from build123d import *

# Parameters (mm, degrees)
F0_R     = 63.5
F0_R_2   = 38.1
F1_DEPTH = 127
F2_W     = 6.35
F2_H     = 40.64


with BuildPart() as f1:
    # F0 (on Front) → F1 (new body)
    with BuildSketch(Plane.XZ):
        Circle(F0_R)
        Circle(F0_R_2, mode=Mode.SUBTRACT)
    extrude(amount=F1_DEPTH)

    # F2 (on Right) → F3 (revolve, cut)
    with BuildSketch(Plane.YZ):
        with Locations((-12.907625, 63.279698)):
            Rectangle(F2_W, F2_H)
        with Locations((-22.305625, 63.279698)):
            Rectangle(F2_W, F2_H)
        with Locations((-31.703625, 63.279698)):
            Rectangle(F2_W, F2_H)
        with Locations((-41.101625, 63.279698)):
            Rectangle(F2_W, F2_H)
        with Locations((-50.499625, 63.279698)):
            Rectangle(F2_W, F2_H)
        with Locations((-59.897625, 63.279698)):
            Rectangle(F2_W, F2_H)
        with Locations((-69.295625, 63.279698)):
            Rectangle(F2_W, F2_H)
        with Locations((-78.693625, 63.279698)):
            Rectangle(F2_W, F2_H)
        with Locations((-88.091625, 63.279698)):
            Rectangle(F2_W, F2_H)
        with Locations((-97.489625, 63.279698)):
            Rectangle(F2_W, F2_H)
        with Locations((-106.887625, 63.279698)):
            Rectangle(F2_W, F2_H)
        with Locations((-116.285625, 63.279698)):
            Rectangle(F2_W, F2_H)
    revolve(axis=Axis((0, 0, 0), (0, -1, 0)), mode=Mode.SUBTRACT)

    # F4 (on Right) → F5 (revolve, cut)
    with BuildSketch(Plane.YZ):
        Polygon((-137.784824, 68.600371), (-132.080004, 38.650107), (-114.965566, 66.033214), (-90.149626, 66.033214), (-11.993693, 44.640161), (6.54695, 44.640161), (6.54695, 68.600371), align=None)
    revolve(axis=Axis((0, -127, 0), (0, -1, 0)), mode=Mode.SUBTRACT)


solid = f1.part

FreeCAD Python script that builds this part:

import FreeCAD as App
import Part
import Sketcher
from FreeCAD import Vector
Q = App.Units.Quantity

doc = App.newDocument("Part")
body = doc.addObject("PartDesign::Body", "Body")

# Sketch on XZ plane
sketch1 = body.newObject("Sketcher::SketchObject", "Sketch")
sketch1.AttachmentSupport = (doc.getObject("XZ_Plane"), [""])
sketch1.MapMode = "FlatFace"
sketch1.addGeometry(Part.Circle(Vector(0, 0, 0), Vector(0, 0, 1), 64), False)
sketch1.addGeometry(Part.Circle(Vector(0, 0, 0), Vector(0, 0, 1), 38), False)
sketch1.addConstraint(Sketcher.Constraint("Coincident", 0, 3, -1, 1))
sketch1.addConstraint(Sketcher.Constraint("Coincident", 1, 3, -1, 1))
sketch1.addConstraint(Sketcher.Constraint("Diameter", 0, Q("5 in")))
sketch1.addConstraint(Sketcher.Constraint("Diameter", 1, Q("3 in")))
pad1 = body.newObject("PartDesign::Pad", "Pad")
pad1.Profile = sketch1
pad1.Length = Q("5 in")

# Sketch on YZ plane
sketch2 = body.newObject("Sketcher::SketchObject", "Sketch001")
sketch2.AttachmentSupport = (doc.getObject("YZ_Plane"), [""])
sketch2.MapMode = "FlatFace"
sketch2.addGeometry(Part.LineSegment(Vector(-16, 84, 0), Vector(-16, 43, 0)), False)
sketch2.addGeometry(Part.LineSegment(Vector(-16, 43, 0), Vector(-10, 43, 0)), False)
sketch2.addGeometry(Part.LineSegment(Vector(-10, 43, 0), Vector(-10, 84, 0)), False)
sketch2.addGeometry(Part.LineSegment(Vector(-10, 84, 0), Vector(-16, 84, 0)), False)
sketch2.addGeometry(Part.LineSegment(Vector(-25, 84, 0), Vector(-25, 43, 0)), False)
sketch2.addGeometry(Part.LineSegment(Vector(-25, 43, 0), Vector(-19, 43, 0)), False)
sketch2.addGeometry(Part.LineSegment(Vector(-19, 43, 0), Vector(-19, 84, 0)), False)
sketch2.addGeometry(Part.LineSegment(Vector(-19, 84, 0), Vector(-25, 84, 0)), False)
sketch2.addGeometry(Part.LineSegment(Vector(-35, 84, 0), Vector(-35, 43, 0)), False)
sketch2.addGeometry(Part.LineSegment(Vector(-35, 43, 0), Vector(-29, 43, 0)), False)
sketch2.addGeometry(Part.LineSegment(Vector(-29, 43, 0), Vector(-29, 84, 0)), False)
sketch2.addGeometry(Part.LineSegment(Vector(-29, 84, 0), Vector(-35, 84, 0)), False)
sketch2.addGeometry(Part.LineSegment(Vector(-44, 84, 0), Vector(-44, 43, 0)), False)
sketch2.addGeometry(Part.LineSegment(Vector(-44, 43, 0), Vector(-38, 43, 0)), False)
sketch2.addGeometry(Part.LineSegment(Vector(-38, 43, 0), Vector(-38, 84, 0)), False)
sketch2.addGeometry(Part.LineSegment(Vector(-38, 84, 0), Vector(-44, 84, 0)), False)
sketch2.addGeometry(Part.LineSegment(Vector(-54, 84, 0), Vector(-54, 43, 0)), False)
sketch2.addGeometry(Part.LineSegment(Vector(-54, 43, 0), Vector(-47, 43, 0)), False)
sketch2.addGeometry(Part.LineSegment(Vector(-47, 43, 0), Vector(-47, 84, 0)), False)
sketch2.addGeometry(Part.LineSegment(Vector(-47, 84, 0), Vector(-54, 84, 0)), False)
sketch2.addGeometry(Part.LineSegment(Vector(-63, 84, 0), Vector(-63, 43, 0)), False)
sketch2.addGeometry(Part.LineSegment(Vector(-63, 43, 0), Vector(-57, 43, 0)), False)
sketch2.addGeometry(Part.LineSegment(Vector(-57, 43, 0), Vector(-57, 84, 0)), False)
sketch2.addGeometry(Part.LineSegment(Vector(-57, 84, 0), Vector(-63, 84, 0)), False)
sketch2.addGeometry(Part.LineSegment(Vector(-72, 84, 0), Vector(-72, 43, 0)), False)
sketch2.addGeometry(Part.LineSegment(Vector(-72, 43, 0), Vector(-66, 43, 0)), False)
sketch2.addGeometry(Part.LineSegment(Vector(-66, 43, 0), Vector(-66, 84, 0)), False)
sketch2.addGeometry(Part.LineSegment(Vector(-66, 84, 0), Vector(-72, 84, 0)), False)
sketch2.addGeometry(Part.LineSegment(Vector(-82, 84, 0), Vector(-82, 43, 0)), False)
sketch2.addGeometry(Part.LineSegment(Vector(-82, 43, 0), Vector(-76, 43, 0)), False)
sketch2.addGeometry(Part.LineSegment(Vector(-76, 43, 0), Vector(-76, 84, 0)), False)
sketch2.addGeometry(Part.LineSegment(Vector(-76, 84, 0), Vector(-82, 84, 0)), False)
sketch2.addGeometry(Part.LineSegment(Vector(-91, 84, 0), Vector(-91, 43, 0)), False)
sketch2.addGeometry(Part.LineSegment(Vector(-91, 43, 0), Vector(-85, 43, 0)), False)
sketch2.addGeometry(Part.LineSegment(Vector(-85, 43, 0), Vector(-85, 84, 0)), False)
sketch2.addGeometry(Part.LineSegment(Vector(-85, 84, 0), Vector(-91, 84, 0)), False)
sketch2.addGeometry(Part.LineSegment(Vector(-101, 84, 0), Vector(-101, 43, 0)), False)
sketch2.addGeometry(Part.LineSegment(Vector(-101, 43, 0), Vector(-94, 43, 0)), False)
sketch2.addGeometry(Part.LineSegment(Vector(-94, 43, 0), Vector(-94, 84, 0)), False)
sketch2.addGeometry(Part.LineSegment(Vector(-94, 84, 0), Vector(-101, 84, 0)), False)
sketch2.addGeometry(Part.LineSegment(Vector(-110, 84, 0), Vector(-110, 43, 0)), False)
sketch2.addGeometry(Part.LineSegment(Vector(-110, 43, 0), Vector(-104, 43, 0)), False)
sketch2.addGeometry(Part.LineSegment(Vector(-104, 43, 0), Vector(-104, 84, 0)), False)
sketch2.addGeometry(Part.LineSegment(Vector(-104, 84, 0), Vector(-110, 84, 0)), False)
sketch2.addGeometry(Part.LineSegment(Vector(-119, 84, 0), Vector(-119, 43, 0)), False)
sketch2.addGeometry(Part.LineSegment(Vector(-119, 43, 0), Vector(-113, 43, 0)), False)
sketch2.addGeometry(Part.LineSegment(Vector(-113, 43, 0), Vector(-113, 84, 0)), False)
sketch2.addGeometry(Part.LineSegment(Vector(-113, 84, 0), Vector(-119, 84, 0)), False)
sketch2.addConstraint(Sketcher.Constraint("Coincident", 0, 2, 1, 1))
sketch2.addConstraint(Sketcher.Constraint("Coincident", 1, 2, 2, 1))
sketch2.addConstraint(Sketcher.Constraint("Coincident", 2, 2, 3, 1))
sketch2.addConstraint(Sketcher.Constraint("Coincident", 3, 2, 0, 1))
sketch2.addConstraint(Sketcher.Constraint("Coincident", 4, 2, 5, 1))
sketch2.addConstraint(Sketcher.Constraint("Coincident", 5, 2, 6, 1))
sketch2.addConstraint(Sketcher.Constraint("Coincident", 6, 2, 7, 1))
sketch2.addConstraint(Sketcher.Constraint("Coincident", 7, 2, 4, 1))
sketch2.addConstraint(Sketcher.Constraint("Coincident", 8, 2, 9, 1))
sketch2.addConstraint(Sketcher.Constraint("Coincident", 9, 2, 10, 1))
sketch2.addConstraint(Sketcher.Constraint("Coincident", 10, 2, 11, 1))
sketch2.addConstraint(Sketcher.Constraint("Coincident", 11, 2, 8, 1))
sketch2.addConstraint(Sketcher.Constraint("Coincident", 12, 2, 13, 1))
sketch2.addConstraint(Sketcher.Constraint("Coincident", 13, 2, 14, 1))
sketch2.addConstraint(Sketcher.Constraint("Coincident", 14, 2, 15, 1))
sketch2.addConstraint(Sketcher.Constraint("Coincident", 15, 2, 12, 1))
sketch2.addConstraint(Sketcher.Constraint("Coincident", 16, 2, 17, 1))
sketch2.addConstraint(Sketcher.Constraint("Coincident", 17, 2, 18, 1))
sketch2.addConstraint(Sketcher.Constraint("Coincident", 18, 2, 19, 1))
sketch2.addConstraint(Sketcher.Constraint("Coincident", 19, 2, 16, 1))
sketch2.addConstraint(Sketcher.Constraint("Coincident", 20, 2, 21, 1))
sketch2.addConstraint(Sketcher.Constraint("Coincident", 21, 2, 22, 1))
sketch2.addConstraint(Sketcher.Constraint("Coincident", 22, 2, 23, 1))
sketch2.addConstraint(Sketcher.Constraint("Coincident", 23, 2, 20, 1))
sketch2.addConstraint(Sketcher.Constraint("Coincident", 24, 2, 25, 1))
sketch2.addConstraint(Sketcher.Constraint("Coincident", 25, 2, 26, 1))
sketch2.addConstraint(Sketcher.Constraint("Coincident", 26, 2, 27, 1))
sketch2.addConstraint(Sketcher.Constraint("Coincident", 27, 2, 24, 1))
sketch2.addConstraint(Sketcher.Constraint("Coincident", 28, 2, 29, 1))
sketch2.addConstraint(Sketcher.Constraint("Coincident", 29, 2, 30, 1))
sketch2.addConstraint(Sketcher.Constraint("Coincident", 30, 2, 31, 1))
sketch2.addConstraint(Sketcher.Constraint("Coincident", 31, 2, 28, 1))
sketch2.addConstraint(Sketcher.Constraint("Coincident", 32, 2, 33, 1))
sketch2.addConstraint(Sketcher.Constraint("Coincident", 33, 2, 34, 1))
sketch2.addConstraint(Sketcher.Constraint("Coincident", 34, 2, 35, 1))
sketch2.addConstraint(Sketcher.Constraint("Coincident", 35, 2, 32, 1))
sketch2.addConstraint(Sketcher.Constraint("Coincident", 36, 2, 37, 1))
sketch2.addConstraint(Sketcher.Constraint("Coincident", 37, 2, 38, 1))
sketch2.addConstraint(Sketcher.Constraint("Coincident", 38, 2, 39, 1))
sketch2.addConstraint(Sketcher.Constraint("Coincident", 39, 2, 36, 1))
sketch2.addConstraint(Sketcher.Constraint("Coincident", 40, 2, 41, 1))
sketch2.addConstraint(Sketcher.Constraint("Coincident", 41, 2, 42, 1))
sketch2.addConstraint(Sketcher.Constraint("Coincident", 42, 2, 43, 1))
sketch2.addConstraint(Sketcher.Constraint("Coincident", 43, 2, 40, 1))
sketch2.addConstraint(Sketcher.Constraint("Coincident", 44, 2, 45, 1))
sketch2.addConstraint(Sketcher.Constraint("Coincident", 45, 2, 46, 1))
sketch2.addConstraint(Sketcher.Constraint("Coincident", 46, 2, 47, 1))
sketch2.addConstraint(Sketcher.Constraint("Coincident", 47, 2, 44, 1))
sketch2.addConstraint(Sketcher.Constraint("Vertical", 0))
sketch2.addConstraint(Sketcher.Constraint("Horizontal", 1))
sketch2.addConstraint(Sketcher.Constraint("Vertical", 2))
sketch2.addConstraint(Sketcher.Constraint("Horizontal", 3))
sketch2.addConstraint(Sketcher.Constraint("Vertical", 4))
sketch2.addConstraint(Sketcher.Constraint("Horizontal", 5))
sketch2.addConstraint(Sketcher.Constraint("Vertical", 6))
sketch2.addConstraint(Sketcher.Constraint("Horizontal", 7))
sketch2.addConstraint(Sketcher.Constraint("Vertical", 8))
sketch2.addConstraint(Sketcher.Constraint("Horizontal", 9))
sketch2.addConstraint(Sketcher.Constraint("Vertical", 10))
sketch2.addConstraint(Sketcher.Constraint("Horizontal", 11))
sketch2.addConstraint(Sketcher.Constraint("Vertical", 12))
sketch2.addConstraint(Sketcher.Constraint("Horizontal", 13))
sketch2.addConstraint(Sketcher.Constraint("Vertical", 14))
sketch2.addConstraint(Sketcher.Constraint("Horizontal", 15))
sketch2.addConstraint(Sketcher.Constraint("Vertical", 16))
sketch2.addConstraint(Sketcher.Constraint("Horizontal", 17))
sketch2.addConstraint(Sketcher.Constraint("Vertical", 18))
sketch2.addConstraint(Sketcher.Constraint("Horizontal", 19))
sketch2.addConstraint(Sketcher.Constraint("Vertical", 20))
sketch2.addConstraint(Sketcher.Constraint("Horizontal", 21))
sketch2.addConstraint(Sketcher.Constraint("Vertical", 22))
sketch2.addConstraint(Sketcher.Constraint("Horizontal", 23))
sketch2.addConstraint(Sketcher.Constraint("Vertical", 24))
sketch2.addConstraint(Sketcher.Constraint("Horizontal", 25))
sketch2.addConstraint(Sketcher.Constraint("Vertical", 26))
sketch2.addConstraint(Sketcher.Constraint("Horizontal", 27))
sketch2.addConstraint(Sketcher.Constraint("Vertical", 28))
sketch2.addConstraint(Sketcher.Constraint("Horizontal", 29))
sketch2.addConstraint(Sketcher.Constraint("Vertical", 30))
sketch2.addConstraint(Sketcher.Constraint("Horizontal", 31))
sketch2.addConstraint(Sketcher.Constraint("Vertical", 32))
sketch2.addConstraint(Sketcher.Constraint("Horizontal", 33))
sketch2.addConstraint(Sketcher.Constraint("Vertical", 34))
sketch2.addConstraint(Sketcher.Constraint("Horizontal", 35))
sketch2.addConstraint(Sketcher.Constraint("Vertical", 36))
sketch2.addConstraint(Sketcher.Constraint("Horizontal", 37))
sketch2.addConstraint(Sketcher.Constraint("Vertical", 38))
sketch2.addConstraint(Sketcher.Constraint("Horizontal", 39))
sketch2.addConstraint(Sketcher.Constraint("Vertical", 40))
sketch2.addConstraint(Sketcher.Constraint("Horizontal", 41))
sketch2.addConstraint(Sketcher.Constraint("Vertical", 42))
sketch2.addConstraint(Sketcher.Constraint("Horizontal", 43))
sketch2.addConstraint(Sketcher.Constraint("Vertical", 44))
sketch2.addConstraint(Sketcher.Constraint("Horizontal", 45))
sketch2.addConstraint(Sketcher.Constraint("Vertical", 46))
sketch2.addConstraint(Sketcher.Constraint("Horizontal", 47))
sketch2.addConstraint(Sketcher.Constraint("Horizontal", 1, 2, 4, 2))
sketch2.addConstraint(Sketcher.Constraint("Horizontal", 3, 2, 6, 2))
sketch2.addConstraint(Sketcher.Constraint("Horizontal", 5, 2, 8, 2))
sketch2.addConstraint(Sketcher.Constraint("Horizontal", 7, 2, 10, 2))
sketch2.addConstraint(Sketcher.Constraint("Horizontal", 9, 2, 12, 2))
sketch2.addConstraint(Sketcher.Constraint("Horizontal", 11, 2, 14, 2))
sketch2.addConstraint(Sketcher.Constraint("Horizontal", 13, 2, 16, 2))
sketch2.addConstraint(Sketcher.Constraint("Horizontal", 15, 2, 18, 2))
sketch2.addConstraint(Sketcher.Constraint("Horizontal", 17, 2, 20, 2))
sketch2.addConstraint(Sketcher.Constraint("Horizontal", 19, 2, 22, 2))
sketch2.addConstraint(Sketcher.Constraint("Horizontal", 21, 2, 24, 2))
sketch2.addConstraint(Sketcher.Constraint("Horizontal", 23, 2, 26, 2))
sketch2.addConstraint(Sketcher.Constraint("Horizontal", 25, 2, 28, 2))
sketch2.addConstraint(Sketcher.Constraint("Horizontal", 27, 2, 30, 2))
sketch2.addConstraint(Sketcher.Constraint("Horizontal", 29, 2, 32, 2))
sketch2.addConstraint(Sketcher.Constraint("Horizontal", 31, 2, 34, 2))
sketch2.addConstraint(Sketcher.Constraint("Horizontal", 33, 2, 36, 2))
sketch2.addConstraint(Sketcher.Constraint("Horizontal", 35, 2, 38, 2))
sketch2.addConstraint(Sketcher.Constraint("Horizontal", 37, 2, 40, 2))
sketch2.addConstraint(Sketcher.Constraint("Horizontal", 39, 2, 42, 2))
sketch2.addConstraint(Sketcher.Constraint("Horizontal", 41, 2, 44, 2))
sketch2.addConstraint(Sketcher.Constraint("Horizontal", 43, 2, 46, 2))
sketch2.addConstraint(Sketcher.Constraint("Equal", 3, 5))
sketch2.addConstraint(Sketcher.Constraint("Equal", 7, 9))
sketch2.addConstraint(Sketcher.Constraint("Equal", 11, 13))
sketch2.addConstraint(Sketcher.Constraint("Equal", 15, 17))
sketch2.addConstraint(Sketcher.Constraint("Equal", 19, 21))
sketch2.addConstraint(Sketcher.Constraint("Equal", 23, 25))
sketch2.addConstraint(Sketcher.Constraint("Equal", 27, 29))
sketch2.addConstraint(Sketcher.Constraint("Equal", 31, 33))
sketch2.addConstraint(Sketcher.Constraint("Equal", 35, 37))
sketch2.addConstraint(Sketcher.Constraint("Equal", 39, 41))
sketch2.addConstraint(Sketcher.Constraint("Equal", 43, 45))
sketch2.addConstraint(Sketcher.Constraint("DistanceY", 0, 2, 0, 1, Q("1.6 in")))
sketch2.addConstraint(Sketcher.Constraint("DistanceX", 1, 1, 1, 2, Q("0.25 in")))
sketch2.addConstraint(Sketcher.Constraint("DistanceX", 4, 2, 0, 2, Q("0.37 in")))
sketch2.addConstraint(Sketcher.Constraint("DistanceX", 8, 2, 4, 2, Q("0.37 in")))
sketch2.addConstraint(Sketcher.Constraint("DistanceX", 12, 2, 8, 2, Q("0.37 in")))
sketch2.addConstraint(Sketcher.Constraint("DistanceX", 16, 2, 12, 2, Q("0.37 in")))
sketch2.addConstraint(Sketcher.Constraint("DistanceX", 20, 2, 16, 2, Q("0.37 in")))
sketch2.addConstraint(Sketcher.Constraint("DistanceX", 24, 2, 20, 2, Q("0.37 in")))
sketch2.addConstraint(Sketcher.Constraint("DistanceX", 28, 2, 24, 2, Q("0.37 in")))
sketch2.addConstraint(Sketcher.Constraint("DistanceX", 32, 2, 28, 2, Q("0.37 in")))
sketch2.addConstraint(Sketcher.Constraint("DistanceX", 36, 2, 32, 2, Q("0.37 in")))
sketch2.addConstraint(Sketcher.Constraint("DistanceX", 40, 2, 36, 2, Q("0.37 in")))
sketch2.addConstraint(Sketcher.Constraint("DistanceX", 44, 2, 40, 2, Q("0.37 in")))
sketch2.addConstraint(Sketcher.Constraint("DistanceY", -1, 1, 0, 2, 42.959698))
sketch2.addConstraint(Sketcher.Constraint("DistanceX", 0, 2, -1, 1, 16.082625))
groove = body.newObject("PartDesign::Groove", "Groove")
groove.Profile = sketch2
groove.ReferenceAxis = (sketch2, ["H_Axis"])
groove.Angle = 360

# Sketch on YZ plane
sketch3 = body.newObject("Sketcher::SketchObject", "Sketch002")
sketch3.AttachmentSupport = (doc.getObject("YZ_Plane"), [""])
sketch3.MapMode = "FlatFace"
sketch3.addGeometry(Part.LineSegment(Vector(-138, 69, 0), Vector(-132, 39, 0)), False)
sketch3.addGeometry(Part.LineSegment(Vector(-132, 39, 0), Vector(-115, 66, 0)), False)
sketch3.addGeometry(Part.LineSegment(Vector(-115, 66, 0), Vector(-90, 66, 0)), False)
sketch3.addGeometry(Part.LineSegment(Vector(-90, 66, 0), Vector(-12, 45, 0)), False)
sketch3.addGeometry(Part.LineSegment(Vector(-12, 45, 0), Vector(7, 45, 0)), False)
sketch3.addGeometry(Part.LineSegment(Vector(7, 45, 0), Vector(7, 69, 0)), False)
sketch3.addGeometry(Part.LineSegment(Vector(7, 69, 0), Vector(-138, 69, 0)), False)
sketch3.addConstraint(Sketcher.Constraint("Coincident", 0, 2, 1, 1))
sketch3.addConstraint(Sketcher.Constraint("Coincident", 1, 2, 2, 1))
sketch3.addConstraint(Sketcher.Constraint("Coincident", 2, 2, 3, 1))
sketch3.addConstraint(Sketcher.Constraint("Coincident", 3, 2, 4, 1))
sketch3.addConstraint(Sketcher.Constraint("Coincident", 4, 2, 5, 1))
sketch3.addConstraint(Sketcher.Constraint("Coincident", 5, 2, 6, 1))
sketch3.addConstraint(Sketcher.Constraint("Coincident", 6, 2, 0, 1))
sketch3.addConstraint(Sketcher.Constraint("Horizontal", 2))
sketch3.addConstraint(Sketcher.Constraint("Horizontal", 4))
sketch3.addConstraint(Sketcher.Constraint("Vertical", 5))
sketch3.addConstraint(Sketcher.Constraint("Horizontal", 6))
sketch3.addConstraint(Sketcher.Constraint("DistanceX", 0, 2, -1, 1, Q("5.2000002 in")))
sketch3.addConstraint(Sketcher.Constraint("DistanceX", 2, 1, 2, 2, 24.81594))
sketch3.addConstraint(Sketcher.Constraint("DistanceY", 5, 1, 5, 2, 23.96021))
sketch3.addConstraint(Sketcher.Constraint("Distance", 0, 30.48874))
sketch3.addConstraint(Sketcher.Constraint("DistanceX", 4, 1, 4, 2, 18.540643))
sketch3.addConstraint(Sketcher.Constraint("DistanceX", 6, 2, 6, 1, 144.331774))
sketch3.addConstraint(Sketcher.Constraint("DistanceY", -1, 1, 3, 2, 44.640161))
sketch3.addConstraint(Sketcher.Constraint("DistanceX", -1, 1, 4, 2, 6.54695))
sketch3.addConstraint(Sketcher.Constraint("DistanceX", 0, 2, 1, 2, 17.114438))
sketch3.addConstraint(Sketcher.Constraint("Distance", 1, 32.291462))
groove2 = body.newObject("PartDesign::Groove", "Groove001")
groove2.Profile = sketch3
groove2.ReferenceAxis = (sketch3, ["H_Axis"])
groove2.Angle = 360

doc.recompute()
